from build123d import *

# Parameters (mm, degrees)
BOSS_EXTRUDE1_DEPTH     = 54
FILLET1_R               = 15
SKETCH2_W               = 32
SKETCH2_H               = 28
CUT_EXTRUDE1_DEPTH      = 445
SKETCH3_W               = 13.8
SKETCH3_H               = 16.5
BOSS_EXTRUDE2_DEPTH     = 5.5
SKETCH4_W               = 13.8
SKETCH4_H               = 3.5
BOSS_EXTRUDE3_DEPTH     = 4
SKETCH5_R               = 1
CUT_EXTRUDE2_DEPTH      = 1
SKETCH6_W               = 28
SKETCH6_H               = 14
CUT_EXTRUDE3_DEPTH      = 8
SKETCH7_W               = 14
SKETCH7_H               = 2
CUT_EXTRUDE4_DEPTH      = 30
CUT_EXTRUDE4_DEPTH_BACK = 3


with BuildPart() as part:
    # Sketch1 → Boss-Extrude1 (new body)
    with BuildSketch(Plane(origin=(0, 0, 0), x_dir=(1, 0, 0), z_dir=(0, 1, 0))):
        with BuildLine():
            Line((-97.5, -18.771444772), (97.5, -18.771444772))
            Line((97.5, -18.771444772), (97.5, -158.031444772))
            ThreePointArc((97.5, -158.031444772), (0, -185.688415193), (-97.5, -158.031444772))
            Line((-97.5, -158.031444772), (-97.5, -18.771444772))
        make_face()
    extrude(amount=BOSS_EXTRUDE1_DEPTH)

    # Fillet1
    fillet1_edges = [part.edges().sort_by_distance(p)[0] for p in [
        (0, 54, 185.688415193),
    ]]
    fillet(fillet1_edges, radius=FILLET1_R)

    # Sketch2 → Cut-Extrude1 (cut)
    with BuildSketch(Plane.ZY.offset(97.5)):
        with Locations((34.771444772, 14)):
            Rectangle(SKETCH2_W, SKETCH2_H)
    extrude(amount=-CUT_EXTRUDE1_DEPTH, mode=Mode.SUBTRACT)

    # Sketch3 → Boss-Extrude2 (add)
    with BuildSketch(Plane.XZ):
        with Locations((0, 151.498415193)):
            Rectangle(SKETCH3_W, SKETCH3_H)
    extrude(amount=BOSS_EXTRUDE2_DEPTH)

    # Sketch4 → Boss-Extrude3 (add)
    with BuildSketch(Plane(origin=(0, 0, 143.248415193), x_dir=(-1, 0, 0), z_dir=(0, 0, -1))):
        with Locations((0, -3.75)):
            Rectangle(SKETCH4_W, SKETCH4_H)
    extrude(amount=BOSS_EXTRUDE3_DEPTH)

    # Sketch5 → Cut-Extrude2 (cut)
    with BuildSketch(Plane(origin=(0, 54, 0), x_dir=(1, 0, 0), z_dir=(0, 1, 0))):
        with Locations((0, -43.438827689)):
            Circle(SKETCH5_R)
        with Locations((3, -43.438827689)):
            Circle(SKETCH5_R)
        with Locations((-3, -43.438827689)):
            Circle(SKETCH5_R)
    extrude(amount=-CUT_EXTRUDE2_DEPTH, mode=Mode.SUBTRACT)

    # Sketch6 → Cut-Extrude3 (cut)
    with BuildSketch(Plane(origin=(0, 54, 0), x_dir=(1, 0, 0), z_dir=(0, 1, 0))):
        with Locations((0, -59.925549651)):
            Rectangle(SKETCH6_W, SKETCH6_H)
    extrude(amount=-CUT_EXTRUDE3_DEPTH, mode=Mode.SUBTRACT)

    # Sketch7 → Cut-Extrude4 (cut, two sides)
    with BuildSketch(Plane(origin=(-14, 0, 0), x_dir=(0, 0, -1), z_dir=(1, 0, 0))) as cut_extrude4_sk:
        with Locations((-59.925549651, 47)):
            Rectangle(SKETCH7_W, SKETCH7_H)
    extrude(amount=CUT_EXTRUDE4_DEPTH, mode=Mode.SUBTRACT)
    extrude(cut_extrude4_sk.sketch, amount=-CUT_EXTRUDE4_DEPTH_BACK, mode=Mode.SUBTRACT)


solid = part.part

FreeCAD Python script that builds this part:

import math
import FreeCAD as App
import Part
import Sketcher
from FreeCAD import Vector


def edges_at(feature, points):
    """Names of the edges that pass closest to the given points."""
    edges = feature.Shape.Edges
    near = lambda p: min(range(len(edges)), key=lambda i: edges[i].distToShape(Part.Vertex(*p))[0])
    return sorted({f"Edge{near(p) + 1}" for p in points})

doc = App.newDocument("Part")
body = doc.addObject("PartDesign::Body", "Body")

# Sketch on XZ plane
sketch1 = body.newObject("Sketcher::SketchObject", "Sketch")
sketch1.AttachmentSupport = (doc.getObject("XZ_Plane"), [""])
sketch1.MapMode = "FlatFace"
sketch1.addGeometry(Part.LineSegment(Vector(97.5, 18.771445, 0), Vector(-97.5, 18.771445, 0)), False)
sketch1.addGeometry(Part.LineSegment(Vector(-97.5, 18.771445, 0), Vector(-97.5, 158.031445, 0)), False)
sketch1.addGeometry(Part.ArcOfCircle(Part.Circle(Vector(0, 0, 0), Vector(0, 0, 1), 185.688415), math.radians(58.326833), math.radians(121.673167)), False)
sketch1.addGeometry(Part.LineSegment(Vector(97.5, 158.031445, 0), Vector(97.5, 18.771445, 0)), False)
sketch1.addConstraint(Sketcher.Constraint("Coincident", 0, 2, 1, 1))
sketch1.addConstraint(Sketcher.Constraint("Coincident", 1, 2, 2, 2))
sketch1.addConstraint(Sketcher.Constraint("Coincident", 2, 1, 3, 1))
sketch1.addConstraint(Sketcher.Constraint("Coincident", 3, 2, 0, 1))
sketch1.addConstraint(Sketcher.Constraint("Horizontal", 0))
sketch1.addConstraint(Sketcher.Constraint("Vertical", 1))
sketch1.addConstraint(Sketcher.Constraint("Vertical", 3))
sketch1.addConstraint(Sketcher.Constraint("Coincident", 2, 3, -1, 1))
sketch1.addConstraint(Sketcher.Constraint("Horizontal", 1, 2, 2, 1))
sketch1.addConstraint(Sketcher.Constraint("DistanceX", 0, 2, 0, 1, 195.0))
sketch1.addConstraint(Sketcher.Constraint("DistanceY", 1, 1, 1, 2, 139.26))
sketch1.addConstraint(Sketcher.Constraint("Radius", 2, 185.688415))
pad1 = body.newObject("PartDesign::Pad", "Pad")
pad1.Profile = sketch1
pad1.Length = 54
pad1.Reversed = True
doc.recompute()

fillet = body.newObject("PartDesign::Fillet", "Fillet")
fillet.Base = (pad1, edges_at(pad1, [(0, 54, 185.688)]))
fillet.Radius = 15

# Sketch on YZ plane
sketch2 = body.newObject("Sketcher::SketchObject", "Sketch001")
sketch2.AttachmentSupport = (doc.getObject("YZ_Plane"), [""])
sketch2.MapMode = "FlatFace"
sketch2.AttachmentOffset = App.Placement(Vector(0, 0, -97.5), App.Rotation())
sketch2.addGeometry(Part.LineSegment(Vector(28, 18.771445, 0), Vector(0, 18.771445, 0)), False)
sketch2.addGeometry(Part.LineSegment(Vector(0, 18.771445, 0), Vector(0, 50.771445, 0)), False)
sketch2.addGeometry(Part.LineSegment(Vector(0, 50.771445, 0), Vector(28, 50.771445, 0)), False)
sketch2.addGeometry(Part.LineSegment(Vector(28, 50.771445, 0), Vector(28, 18.771445, 0)), False)
sketch2.addConstraint(Sketcher.Constraint("Coincident", 0, 2, 1, 1))
sketch2.addConstraint(Sketcher.Constraint("Coincident", 1, 2, 2, 1))
sketch2.addConstraint(Sketcher.Constraint("Coincident", 2, 2, 3, 1))
sketch2.addConstraint(Sketcher.Constraint("Coincident", 3, 2, 0, 1))
sketch2.addConstraint(Sketcher.Constraint("Horizontal", 0))
sketch2.addConstraint(Sketcher.Constraint("Vertical", 1))
sketch2.addConstraint(Sketcher.Constraint("Horizontal", 2))
sketch2.addConstraint(Sketcher.Constraint("Vertical", 3))
sketch2.addConstraint(Sketcher.Constraint("PointOnObject", 0, 2, -2))
sketch2.addConstraint(Sketcher.Constraint("DistanceX", 0, 2, 0, 1, 28.0))
sketch2.addConstraint(Sketcher.Constraint("DistanceY", 1, 1, 1, 2, 32.0))
sketch2.addConstraint(Sketcher.Constraint("DistanceY", -1, 1, 0, 2, 18.771445))
pocket1 = body.newObject("PartDesign::Pocket", "Pocket")
pocket1.Profile = sketch2
pocket1.Length = 445
pocket1.Reversed = True

# Sketch on XZ plane
sketch3 = body.newObject("Sketcher::SketchObject", "Sketch002")
sketch3.AttachmentSupport = (doc.getObject("XZ_Plane"), [""])
sketch3.MapMode = "FlatFace"
sketch3.addGeometry(Part.LineSegment(Vector(-6.9, 159.748415, 0), Vector(-6.9, 143.248415, 0)), False)
sketch3.addGeometry(Part.LineSegment(Vector(-6.9, 143.248415, 0), Vector(6.9, 143.248415, 0)), False)
sketch3.addGeometry(Part.LineSegment(Vector(6.9, 143.248415, 0), Vector(6.9, 159.748415, 0)), False)
sketch3.addGeometry(Part.LineSegment(Vector(6.9, 159.748415, 0), Vector(-6.9, 159.748415, 0)), False)
sketch3.addConstraint(Sketcher.Constraint("Coincident", 0, 2, 1, 1))
sketch3.addConstraint(Sketcher.Constraint("Coincident", 1, 2, 2, 1))
sketch3.addConstraint(Sketcher.Constraint("Coincident", 2, 2, 3, 1))
sketch3.addConstraint(Sketcher.Constraint("Coincident", 3, 2, 0, 1))
sketch3.addConstraint(Sketcher.Constraint("Vertical", 0))
sketch3.addConstraint(Sketcher.Constraint("Horizontal", 1))
sketch3.addConstraint(Sketcher.Constraint("Vertical", 2))
sketch3.addConstraint(Sketcher.Constraint("Horizontal", 3))
sketch3.addConstraint(Sketcher.Constraint("DistanceX", 1, 1, 1, 2, 13.8))
sketch3.addConstraint(Sketcher.Constraint("DistanceY", 0, 2, 0, 1, 16.5))
sketch3.addConstraint(Sketcher.Constraint("DistanceX", 0, 2, -1, 1, 6.9))
sketch3.addConstraint(Sketcher.Constraint("DistanceY", -1, 1, 0, 2, 143.248415))
pad2 = body.newObject("PartDesign::Pad", "Pad001")
pad2.Profile = sketch3
pad2.Length = 5.5

# Sketch on XY plane
sketch4 = body.newObject("Sketcher::SketchObject", "Sketch003")
sketch4.AttachmentSupport = (doc.getObject("XY_Plane"), [""])
sketch4.MapMode = "FlatFace"
sketch4.AttachmentOffset = App.Placement(Vector(0, 0, 143.248415), App.Rotation())
sketch4.addGeometry(Part.LineSegment(Vector(6.9, -2, 0), Vector(6.9, -5.5, 0)), False)
sketch4.addGeometry(Part.LineSegment(Vector(6.9, -5.5, 0), Vector(-6.9, -5.5, 0)), False)
sketch4.addGeometry(Part.LineSegment(Vector(-6.9, -5.5, 0), Vector(-6.9, -2, 0)), False)
sketch4.addGeometry(Part.LineSegment(Vector(-6.9, -2, 0), Vector(6.9, -2, 0)), False)
sketch4.addConstraint(Sketcher.Constraint("Coincident", 0, 2, 1, 1))
sketch4.addConstraint(Sketcher.Constraint("Coincident", 1, 2, 2, 1))
sketch4.addConstraint(Sketcher.Constraint("Coincident", 2, 2, 3, 1))
sketch4.addConstraint(Sketcher.Constraint("Coincident", 3, 2, 0, 1))
sketch4.addConstraint(Sketcher.Constraint("Vertical", 0))
sketch4.addConstraint(Sketcher.Constraint("Horizontal", 1))
sketch4.addConstraint(Sketcher.Constraint("Vertical", 2))
sketch4.addConstraint(Sketcher.Constraint("Horizontal", 3))
sketch4.addConstraint(Sketcher.Constraint("DistanceX", 1, 2, 1, 1, 13.8))
sketch4.addConstraint(Sketcher.Constraint("DistanceY", 0, 2, 0, 1, 3.5))
sketch4.addConstraint(Sketcher.Constraint("DistanceY", 2, 2, -1, 1, 2.0))
sketch4.addConstraint(Sketcher.Constraint("DistanceX", -1, 1, 0, 2, 6.9))
pad3 = body.newObject("PartDesign::Pad", "Pad002")
pad3.Profile = sketch4
pad3.Length = 4
pad3.Reversed = True

# Sketch on XZ plane
sketch5 = body.newObject("Sketcher::SketchObject", "Sketch004")
sketch5.AttachmentSupport = (doc.getObject("XZ_Plane"), [""])
sketch5.MapMode = "FlatFace"
sketch5.AttachmentOffset = App.Placement(Vector(0, 0, -54), App.Rotation())
sketch5.addGeometry(Part.Circle(Vector(0, 43.438828, 0), Vector(0, 0, 1), 1), False)
sketch5.addGeometry(Part.Circle(Vector(3, 43.438828, 0), Vector(0, 0, 1), 1), False)
sketch5.addGeometry(Part.Circle(Vector(-3, 43.438828, 0), Vector(0, 0, 1), 1), False)
sketch5.addConstraint(Sketcher.Constraint("Equal", 0, 1))
sketch5.addConstraint(Sketcher.Constraint("Equal", 1, 2))
sketch5.addConstraint(Sketcher.Constraint("Symmetric", 1, 3, 2, 3, -2))
sketch5.addConstraint(Sketcher.Constraint("PointOnObject", 0, 3, -2))
sketch5.addConstraint(Sketcher.Constraint("Horizontal", 0, 3, 1, 3))
sketch5.addConstraint(Sketcher.Constraint("Diameter", 0, 2.0))
sketch5.addConstraint(Sketcher.Constraint("DistanceX", -1, 1, 1, 3, 3.0))
sketch5.addConstraint(Sketcher.Constraint("DistanceY", -1, 1, 0, 3, 43.438828))
pocket2 = body.newObject("PartDesign::Pocket", "Pocket001")
pocket2.Profile = sketch5
pocket2.Length = 1
pocket2.Reversed = True

# Sketch on XZ plane
sketch6 = body.newObject("Sketcher::SketchObject", "Sketch005")
sketch6.AttachmentSupport = (doc.getObject("XZ_Plane"), [""])
sketch6.MapMode = "FlatFace"
sketch6.AttachmentOffset = App.Placement(Vector(0, 0, -54), App.Rotation())
sketch6.addGeometry(Part.LineSegment(Vector(-14, 52.92555, 0), Vector(-14, 66.92555, 0)), False)
sketch6.addGeometry(Part.LineSegment(Vector(-14, 66.92555, 0), Vector(14, 66.92555, 0)), False)
sketch6.addGeometry(Part.LineSegment(Vector(14, 66.92555, 0), Vector(14, 52.92555, 0)), False)
sketch6.addGeometry(Part.LineSegment(Vector(14, 52.92555, 0), Vector(-14, 52.92555, 0)), False)
sketch6.addConstraint(Sketcher.Constraint("Coincident", 0, 2, 1, 1))
sketch6.addConstraint(Sketcher.Constraint("Coincident", 1, 2, 2, 1))
sketch6.addConstraint(Sketcher.Constraint("Coincident", 2, 2, 3, 1))
sketch6.addConstraint(Sketcher.Constraint("Coincident", 3, 2, 0, 1))
sketch6.addConstraint(Sketcher.Constraint("Vertical", 0))
sketch6.addConstraint(Sketcher.Constraint("Horizontal", 1))
sketch6.addConstraint(Sketcher.Constraint("Vertical", 2))
sketch6.addConstraint(Sketcher.Constraint("Horizontal", 3))
sketch6.addConstraint(Sketcher.Constraint("DistanceX", 1, 1, 1, 2, 28.0))
sketch6.addConstraint(Sketcher.Constraint("DistanceY", 0, 1, 0, 2, 14.0))
sketch6.addConstraint(Sketcher.Constraint("DistanceX", 0, 2, -1, 1, 14.0))
sketch6.addConstraint(Sketcher.Constraint("DistanceY", -1, 1, 0, 2, 66.92555))
pocket3 = body.newObject("PartDesign::Pocket", "Pocket002")
pocket3.Profile = sketch6
pocket3.Length = 8
pocket3.Reversed = True

# Sketch on YZ plane
sketch7 = body.newObject("Sketcher::SketchObject", "Sketch006")
sketch7.AttachmentSupport = (doc.getObject("YZ_Plane"), [""])
sketch7.MapMode = "FlatFace"
sketch7.AttachmentOffset = App.Placement(Vector(0, 0, -14), App.Rotation())
sketch7.addGeometry(Part.LineSegment(Vector(48, 66.92555, 0), Vector(46, 66.92555, 0)), False)
sketch7.addGeometry(Part.LineSegment(Vector(46, 66.92555, 0), Vector(46, 52.92555, 0)), False)
sketch7.addGeometry(Part.LineSegment(Vector(46, 52.92555, 0), Vector(48, 52.92555, 0)), False)
sketch7.addGeometry(Part.LineSegment(Vector(48, 52.92555, 0), Vector(48, 66.92555, 0)), False)
sketch7.addConstraint(Sketcher.Constraint("Coincident", 0, 2, 1, 1))
sketch7.addConstraint(Sketcher.Constraint("Coincident", 1, 2, 2, 1))
sketch7.addConstraint(Sketcher.Constraint("Coincident", 2, 2, 3, 1))
sketch7.addConstraint(Sketcher.Constraint("Coincident", 3, 2, 0, 1))
sketch7.addConstraint(Sketcher.Constraint("Horizontal", 0))
sketch7.addConstraint(Sketcher.Constraint("Vertical", 1))
sketch7.addConstraint(Sketcher.Constraint("Horizontal", 2))
sketch7.addConstraint(Sketcher.Constraint("Vertical", 3))
sketch7.addConstraint(Sketcher.Constraint("DistanceX", 0, 2, 0, 1, 2.0))
sketch7.addConstraint(Sketcher.Constraint("DistanceY", 1, 2, 1, 1, 14.0))
sketch7.addConstraint(Sketcher.Constraint("DistanceX", -1, 1, 0, 2, 46.0))
sketch7.addConstraint(Sketcher.Constraint("DistanceY", -1, 1, 0, 2, 66.92555))
pocket4 = body.newObject("PartDesign::Pocket", "Pocket003")
pocket4.Profile = sketch7
pocket4.Type = "TwoLengths"
pocket4.Length = 30
pocket4.Length2 = 3
pocket4.Reversed = True

doc.recompute()
